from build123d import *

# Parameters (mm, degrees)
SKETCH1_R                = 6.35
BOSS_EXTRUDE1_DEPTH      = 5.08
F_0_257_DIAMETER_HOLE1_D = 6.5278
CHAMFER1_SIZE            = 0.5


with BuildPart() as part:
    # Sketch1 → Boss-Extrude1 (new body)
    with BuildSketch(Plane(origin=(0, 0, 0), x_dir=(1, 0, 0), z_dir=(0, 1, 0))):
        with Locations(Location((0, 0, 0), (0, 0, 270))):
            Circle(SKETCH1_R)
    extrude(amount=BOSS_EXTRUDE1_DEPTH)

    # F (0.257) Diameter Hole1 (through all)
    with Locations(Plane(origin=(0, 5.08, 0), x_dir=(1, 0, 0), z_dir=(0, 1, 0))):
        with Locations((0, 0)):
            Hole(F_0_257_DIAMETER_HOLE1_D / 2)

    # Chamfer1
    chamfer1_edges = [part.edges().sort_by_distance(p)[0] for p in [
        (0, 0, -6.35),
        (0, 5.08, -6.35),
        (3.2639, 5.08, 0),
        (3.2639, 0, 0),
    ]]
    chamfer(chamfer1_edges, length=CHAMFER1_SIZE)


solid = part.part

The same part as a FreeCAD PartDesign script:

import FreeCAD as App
import Part
import Sketcher

V = App.Vector
Q = App.Units.Quantity


def edges_at(feature, points):
    """Names of the edges that pass closest to the given points."""
    edges = feature.Shape.Edges
    near = lambda p: min(range(len(edges)), key=lambda i: edges[i].distToShape(Part.Vertex(*p))[0])
    return sorted({f"Edge{near(p) + 1}" for p in points})

doc = App.newDocument("Part")
params = doc.addObject("Spreadsheet::Sheet", "Params")
for row, (alias, value) in enumerate([
    ("sketch1_diameter", "0.5 in"),
    ("pad1_length", "0.2 in"),
    ("sketch2_diameter", "0.257 in"),
    ("hole_diameter", "0.257 in"),
    ("chamfer_size", "0.5 mm"),
], start=1):
    params.set(f"A{row}", alias)
    params.set(f"B{row}", "=" + value)
    params.setAlias(f"B{row}", alias)

body = doc.addObject("PartDesign::Body", "Body")

# Sketch on XZ plane
sketch1 = body.newObject("Sketcher::SketchObject", "Sketch")
sketch1.AttachmentSupport = (doc.getObject("XZ_Plane"), [""])
sketch1.MapMode = "FlatFace"
sketch1.addGeometry(Part.Circle(V(0, 0, 0), V(0, 0, 1), 6.35), False)
sketch1.addConstraint([
    Sketcher.Constraint("Coincident", 0, 3, -1, 1),
    Sketcher.Constraint("Diameter", 0, Q("0.5 in")),
])
sketch1.setExpression("Constraints[1]", "Params.sketch1_diameter")
pad1 = body.newObject("PartDesign::Pad", "Pad")
pad1.Profile = sketch1
pad1.setExpression("Length", "Params.pad1_length")
pad1.Reversed = True

# Sketch on XZ plane
sketch2 = body.newObject("Sketcher::SketchObject", "Sketch001")
sketch2.AttachmentSupport = (doc.getObject("XZ_Plane"), [""])
sketch2.MapMode = "FlatFace"
sketch2.AttachmentOffset = App.Placement(V(0, 0, -0.2 * 25.4), App.Rotation())
sketch2.addGeometry(Part.Circle(V(0, 0, 0), V(0, 0, 1), 3.2639), False)
sketch2.addConstraint([
    Sketcher.Constraint("Coincident", 0, 3, -1, 1),
    Sketcher.Constraint("Diameter", 0, Q("0.257 in")),
])
sketch2.setExpression("Constraints[1]", "Params.sketch2_diameter")
doc.recompute()
hole = body.newObject("PartDesign::Hole", "Hole")
hole.Profile = sketch2
hole.ThreadType = "None"
hole.setExpression("Diameter", "Params.hole_diameter")
hole.DepthType = "ThroughAll"
hole.Reversed = True
doc.recompute()

chamfer = body.newObject("PartDesign::Chamfer", "Chamfer")
chamfer.Base = (hole, edges_at(hole, [
    (0, 0, -6.35),
    (0, 5.08, -6.35),
    (3.264, 5.08, 0),
    (3.264, 0, 0),
]))
chamfer.setExpression("Size", "Params.chamfer_size")

doc.recompute()
